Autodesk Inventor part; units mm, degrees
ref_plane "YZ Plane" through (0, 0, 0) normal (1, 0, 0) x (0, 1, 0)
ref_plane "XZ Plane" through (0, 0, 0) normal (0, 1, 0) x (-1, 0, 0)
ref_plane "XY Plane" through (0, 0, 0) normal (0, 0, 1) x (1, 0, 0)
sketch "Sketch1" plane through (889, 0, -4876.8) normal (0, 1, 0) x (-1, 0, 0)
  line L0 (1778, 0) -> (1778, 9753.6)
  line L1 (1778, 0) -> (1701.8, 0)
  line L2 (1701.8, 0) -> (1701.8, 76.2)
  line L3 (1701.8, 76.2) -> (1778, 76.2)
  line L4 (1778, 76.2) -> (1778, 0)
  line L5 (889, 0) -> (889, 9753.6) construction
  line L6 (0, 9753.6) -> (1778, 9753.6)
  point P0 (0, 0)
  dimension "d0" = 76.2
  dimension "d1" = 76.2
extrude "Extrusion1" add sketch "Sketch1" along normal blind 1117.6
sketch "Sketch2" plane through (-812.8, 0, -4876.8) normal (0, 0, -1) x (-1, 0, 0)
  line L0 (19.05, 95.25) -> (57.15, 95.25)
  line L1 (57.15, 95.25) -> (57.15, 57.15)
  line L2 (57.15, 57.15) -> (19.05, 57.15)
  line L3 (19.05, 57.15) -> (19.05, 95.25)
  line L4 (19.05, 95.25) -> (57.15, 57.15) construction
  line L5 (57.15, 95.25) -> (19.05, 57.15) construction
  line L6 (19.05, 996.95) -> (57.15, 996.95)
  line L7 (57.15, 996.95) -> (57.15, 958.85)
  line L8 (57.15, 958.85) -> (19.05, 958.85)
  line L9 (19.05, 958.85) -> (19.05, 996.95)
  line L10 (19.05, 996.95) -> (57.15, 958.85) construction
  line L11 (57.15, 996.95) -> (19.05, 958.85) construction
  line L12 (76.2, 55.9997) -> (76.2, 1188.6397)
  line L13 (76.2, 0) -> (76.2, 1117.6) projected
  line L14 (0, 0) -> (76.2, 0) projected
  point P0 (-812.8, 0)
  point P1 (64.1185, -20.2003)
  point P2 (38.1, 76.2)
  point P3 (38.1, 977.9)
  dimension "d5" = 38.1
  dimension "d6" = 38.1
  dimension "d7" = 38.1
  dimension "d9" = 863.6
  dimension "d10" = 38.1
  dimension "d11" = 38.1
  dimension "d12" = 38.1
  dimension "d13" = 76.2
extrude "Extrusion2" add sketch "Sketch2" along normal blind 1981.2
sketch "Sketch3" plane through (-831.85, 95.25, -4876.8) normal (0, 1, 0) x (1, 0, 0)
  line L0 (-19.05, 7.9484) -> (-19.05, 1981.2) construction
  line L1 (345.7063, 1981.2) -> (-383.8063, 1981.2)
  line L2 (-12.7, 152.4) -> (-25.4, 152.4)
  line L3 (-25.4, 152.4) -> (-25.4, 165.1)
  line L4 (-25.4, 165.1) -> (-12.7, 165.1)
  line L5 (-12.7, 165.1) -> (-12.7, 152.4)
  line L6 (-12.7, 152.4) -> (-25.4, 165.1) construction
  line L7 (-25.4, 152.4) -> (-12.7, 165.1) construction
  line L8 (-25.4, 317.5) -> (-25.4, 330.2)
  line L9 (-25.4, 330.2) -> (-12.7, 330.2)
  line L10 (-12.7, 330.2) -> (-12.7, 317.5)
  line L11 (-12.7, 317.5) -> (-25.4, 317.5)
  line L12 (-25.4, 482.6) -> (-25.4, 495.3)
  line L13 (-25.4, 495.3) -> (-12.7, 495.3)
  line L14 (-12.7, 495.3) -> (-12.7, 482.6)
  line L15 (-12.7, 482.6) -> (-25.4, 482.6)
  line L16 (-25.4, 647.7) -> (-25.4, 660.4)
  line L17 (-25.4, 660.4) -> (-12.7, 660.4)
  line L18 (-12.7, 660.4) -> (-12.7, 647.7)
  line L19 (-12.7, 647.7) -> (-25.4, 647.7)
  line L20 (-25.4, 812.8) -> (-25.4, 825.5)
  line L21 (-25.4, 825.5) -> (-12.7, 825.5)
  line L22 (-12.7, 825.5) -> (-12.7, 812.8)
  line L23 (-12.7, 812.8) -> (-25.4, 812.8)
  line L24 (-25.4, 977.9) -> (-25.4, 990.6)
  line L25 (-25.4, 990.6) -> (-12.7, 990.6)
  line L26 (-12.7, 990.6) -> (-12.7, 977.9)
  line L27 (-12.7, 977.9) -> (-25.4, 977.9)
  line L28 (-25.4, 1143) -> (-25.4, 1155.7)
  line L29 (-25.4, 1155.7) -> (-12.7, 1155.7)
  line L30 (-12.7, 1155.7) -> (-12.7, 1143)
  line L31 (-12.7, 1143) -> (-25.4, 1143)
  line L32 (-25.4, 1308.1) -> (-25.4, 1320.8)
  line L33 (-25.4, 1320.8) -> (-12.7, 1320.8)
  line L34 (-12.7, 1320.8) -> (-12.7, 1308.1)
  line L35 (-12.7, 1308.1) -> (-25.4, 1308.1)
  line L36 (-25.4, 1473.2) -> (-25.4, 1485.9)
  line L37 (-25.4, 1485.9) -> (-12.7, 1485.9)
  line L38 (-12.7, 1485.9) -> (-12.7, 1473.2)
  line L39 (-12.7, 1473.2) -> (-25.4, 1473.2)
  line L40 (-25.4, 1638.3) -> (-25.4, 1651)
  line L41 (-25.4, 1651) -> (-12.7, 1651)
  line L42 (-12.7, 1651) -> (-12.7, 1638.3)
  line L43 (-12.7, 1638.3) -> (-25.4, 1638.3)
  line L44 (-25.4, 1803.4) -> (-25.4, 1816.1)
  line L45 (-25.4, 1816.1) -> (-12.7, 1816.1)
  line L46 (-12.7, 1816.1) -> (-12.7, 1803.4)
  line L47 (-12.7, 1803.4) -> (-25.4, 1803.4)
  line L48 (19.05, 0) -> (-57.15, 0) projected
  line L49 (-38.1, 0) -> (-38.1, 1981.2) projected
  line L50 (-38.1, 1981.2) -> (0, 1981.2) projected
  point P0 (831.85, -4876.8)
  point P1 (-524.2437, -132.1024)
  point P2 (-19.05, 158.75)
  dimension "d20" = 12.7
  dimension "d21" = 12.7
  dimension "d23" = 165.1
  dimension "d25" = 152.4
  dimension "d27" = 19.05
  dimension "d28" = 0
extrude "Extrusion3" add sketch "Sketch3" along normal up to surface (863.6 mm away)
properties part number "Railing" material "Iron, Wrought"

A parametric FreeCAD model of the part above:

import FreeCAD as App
import Part
import Sketcher
Q = App.Units.Quantity

doc = App.newDocument("Part")
body = doc.addObject("PartDesign::Body", "Body")

# Sketch on XZ plane
sketch1 = body.newObject("Sketcher::SketchObject", "Sketch")
sketch1.AttachmentSupport = (doc.getObject("XZ_Plane"), [""])
sketch1.MapMode = "FlatFace"
sketch1.addGeometry([
    Part.LineSegment(App.Vector(-813, -4877, 0), App.Vector(-889, -4877, 0)),
    Part.LineSegment(App.Vector(-889, -4877, 0), App.Vector(-889, -4801, 0)),
    Part.LineSegment(App.Vector(-889, -4801, 0), App.Vector(-813, -4801, 0)),
    Part.LineSegment(App.Vector(-813, -4801, 0), App.Vector(-813, -4877, 0)),
], False)
sketch1.addConstraint([
    Sketcher.Constraint("Coincident", 0, 2, 1, 1),
    Sketcher.Constraint("Coincident", 1, 2, 2, 1),
    Sketcher.Constraint("Coincident", 2, 2, 3, 1),
    Sketcher.Constraint("Coincident", 3, 2, 0, 1),
    Sketcher.Constraint("Horizontal", 0),
    Sketcher.Constraint("Vertical", 1),
    Sketcher.Constraint("Horizontal", 2),
    Sketcher.Constraint("Vertical", 3),
    Sketcher.Constraint("Equal", 2, 1),
    Sketcher.Constraint("DistanceX", 0, 2, 0, 1, Q("3 in")),
    Sketcher.Constraint("DistanceX", 0, 2, -1, 1, Q("35 in")),
    Sketcher.Constraint("DistanceY", 0, 2, -1, 1, Q("192 in")),
])
pad1 = body.newObject("PartDesign::Pad", "Pad")
pad1.Profile = sketch1
pad1.Length = Q("44 in")
pad1.Reversed = True

# Sketch on XY plane
sketch2 = body.newObject("Sketcher::SketchObject", "Sketch001")
sketch2.AttachmentSupport = (doc.getObject("XY_Plane"), [""])
sketch2.MapMode = "FlatFace"
sketch2.AttachmentOffset = App.Placement(App.Vector(0, 0, -192 * 25.4), App.Rotation())
sketch2.addGeometry([
    Part.LineSegment(App.Vector(-870, 95, 0), App.Vector(-832, 95, 0)),  # 0
    Part.LineSegment(App.Vector(-832, 95, 0), App.Vector(-832, 57, 0)),  # 1
    Part.LineSegment(App.Vector(-832, 57, 0), App.Vector(-870, 57, 0)),  # 2
    Part.LineSegment(App.Vector(-870, 57, 0), App.Vector(-870, 95, 0)),  # 3
    Part.LineSegment(App.Vector(-870, 997, 0), App.Vector(-832, 997, 0)),  # 4
    Part.LineSegment(App.Vector(-832, 997, 0), App.Vector(-832, 959, 0)),  # 5
    Part.LineSegment(App.Vector(-832, 959, 0), App.Vector(-870, 959, 0)),  # 6
    Part.LineSegment(App.Vector(-870, 959, 0), App.Vector(-870, 997, 0)),  # 7
], False)
sketch2.addConstraint([
    Sketcher.Constraint("Coincident", 0, 2, 1, 1),
    Sketcher.Constraint("Coincident", 1, 2, 2, 1),
    Sketcher.Constraint("Coincident", 2, 2, 3, 1),
    Sketcher.Constraint("Coincident", 3, 2, 0, 1),
    Sketcher.Constraint("Coincident", 4, 2, 5, 1),
    Sketcher.Constraint("Coincident", 5, 2, 6, 1),
    Sketcher.Constraint("Coincident", 6, 2, 7, 1),
    Sketcher.Constraint("Coincident", 7, 2, 4, 1),
    Sketcher.Constraint("Horizontal", 0),
    Sketcher.Constraint("Vertical", 1),
    Sketcher.Constraint("Horizontal", 2),
    Sketcher.Constraint("Vertical", 3),
    Sketcher.Constraint("Horizontal", 4),
    Sketcher.Constraint("Vertical", 5),
    Sketcher.Constraint("Horizontal", 6),
    Sketcher.Constraint("Vertical", 7),
    Sketcher.Constraint("Vertical", 1, 2, 4, 2),
    Sketcher.Constraint("Vertical", 3, 2, 6, 2),
    Sketcher.Constraint("Equal", 6, 1),
    Sketcher.Constraint("Equal", 3, 5),
    Sketcher.Constraint("DistanceX", 0, 1, 0, 2, Q("1.5 in")),
    Sketcher.Constraint("DistanceY", 0, 2, 5, 2, Q("34 in")),
    Sketcher.Constraint("DistanceX", 0, 2, -1, 1, Q("32.75 in")),
    Sketcher.Constraint("DistanceY", -1, 1, 0, 2, Q("3.75 in")),
])
pad2 = body.newObject("PartDesign::Pad", "Pad001")
pad2.Profile = sketch2
pad2.Length = Q("78 in")
pad2.Reversed = True

# Sketch on XZ plane
sketch3 = body.newObject("Sketcher::SketchObject", "Sketch002")
sketch3.AttachmentSupport = (doc.getObject("XZ_Plane"), [""])
sketch3.MapMode = "FlatFace"
sketch3.AttachmentOffset = App.Placement(App.Vector(0, 0, -3.75 * 25.4), App.Rotation())
sketch3.addGeometry([
    Part.LineSegment(App.Vector(-857, -5029, 0), App.Vector(-845, -5029, 0)),  # 0
    Part.LineSegment(App.Vector(-845, -5029, 0), App.Vector(-845, -5042, 0)),  # 1
    Part.LineSegment(App.Vector(-845, -5042, 0), App.Vector(-857, -5042, 0)),  # 2
    Part.LineSegment(App.Vector(-857, -5042, 0), App.Vector(-857, -5029, 0)),  # 3
    Part.LineSegment(App.Vector(-857, -5207, 0), App.Vector(-857, -5194, 0)),  # 4
    Part.LineSegment(App.Vector(-857, -5194, 0), App.Vector(-845, -5194, 0)),  # 5
    Part.LineSegment(App.Vector(-845, -5194, 0), App.Vector(-845, -5207, 0)),  # 6
    Part.LineSegment(App.Vector(-845, -5207, 0), App.Vector(-857, -5207, 0)),  # 7
    Part.LineSegment(App.Vector(-857, -5372, 0), App.Vector(-857, -5359, 0)),  # 8
    Part.LineSegment(App.Vector(-857, -5359, 0), App.Vector(-845, -5359, 0)),  # 9
    Part.LineSegment(App.Vector(-845, -5359, 0), App.Vector(-845, -5372, 0)),  # 10
    Part.LineSegment(App.Vector(-845, -5372, 0), App.Vector(-857, -5372, 0)),  # 11
    Part.LineSegment(App.Vector(-857, -5537, 0), App.Vector(-857, -5524, 0)),  # 12
    Part.LineSegment(App.Vector(-857, -5524, 0), App.Vector(-845, -5524, 0)),  # 13
    Part.LineSegment(App.Vector(-845, -5524, 0), App.Vector(-845, -5537, 0)),  # 14
    Part.LineSegment(App.Vector(-845, -5537, 0), App.Vector(-857, -5537, 0)),  # 15
    Part.LineSegment(App.Vector(-857, -5702, 0), App.Vector(-857, -5690, 0)),  # 16
    Part.LineSegment(App.Vector(-857, -5690, 0), App.Vector(-845, -5690, 0)),  # 17
    Part.LineSegment(App.Vector(-845, -5690, 0), App.Vector(-845, -5702, 0)),  # 18
    Part.LineSegment(App.Vector(-845, -5702, 0), App.Vector(-857, -5702, 0)),  # 19
    Part.LineSegment(App.Vector(-857, -5867, 0), App.Vector(-857, -5855, 0)),  # 20
    Part.LineSegment(App.Vector(-857, -5855, 0), App.Vector(-845, -5855, 0)),  # 21
    Part.LineSegment(App.Vector(-845, -5855, 0), App.Vector(-845, -5867, 0)),  # 22
    Part.LineSegment(App.Vector(-845, -5867, 0), App.Vector(-857, -5867, 0)),  # 23
    Part.LineSegment(App.Vector(-857, -6032, 0), App.Vector(-857, -6020, 0)),  # 24
    Part.LineSegment(App.Vector(-857, -6020, 0), App.Vector(-845, -6020, 0)),  # 25
    Part.LineSegment(App.Vector(-845, -6020, 0), App.Vector(-845, -6032, 0)),  # 26
    Part.LineSegment(App.Vector(-845, -6032, 0), App.Vector(-857, -6032, 0)),  # 27
    Part.LineSegment(App.Vector(-857, -6198, 0), App.Vector(-857, -6185, 0)),  # 28
    Part.LineSegment(App.Vector(-857, -6185, 0), App.Vector(-845, -6185, 0)),  # 29
    Part.LineSegment(App.Vector(-845, -6185, 0), App.Vector(-845, -6198, 0)),  # 30
    Part.LineSegment(App.Vector(-845, -6198, 0), App.Vector(-857, -6198, 0)),  # 31
    Part.LineSegment(App.Vector(-857, -6363, 0), App.Vector(-857, -6350, 0)),  # 32
    Part.LineSegment(App.Vector(-857, -6350, 0), App.Vector(-845, -6350, 0)),  # 33
    Part.LineSegment(App.Vector(-845, -6350, 0), App.Vector(-845, -6363, 0)),  # 34
    Part.LineSegment(App.Vector(-845, -6363, 0), App.Vector(-857, -6363, 0)),  # 35
    Part.LineSegment(App.Vector(-857, -6528, 0), App.Vector(-857, -6515, 0)),  # 36
    Part.LineSegment(App.Vector(-857, -6515, 0), App.Vector(-845, -6515, 0)),  # 37
    Part.LineSegment(App.Vector(-845, -6515, 0), App.Vector(-845, -6528, 0)),  # 38
    Part.LineSegment(App.Vector(-845, -6528, 0), App.Vector(-857, -6528, 0)),  # 39
    Part.LineSegment(App.Vector(-857, -6693, 0), App.Vector(-857, -6680, 0)),  # 40
    Part.LineSegment(App.Vector(-857, -6680, 0), App.Vector(-845, -6680, 0)),  # 41
    Part.LineSegment(App.Vector(-845, -6680, 0), App.Vector(-845, -6693, 0)),  # 42
    Part.LineSegment(App.Vector(-845, -6693, 0), App.Vector(-857, -6693, 0)),  # 43
], False)
sketch3.addConstraint([
    Sketcher.Constraint("Coincident", 0, 2, 1, 1),
    Sketcher.Constraint("Coincident", 1, 2, 2, 1),
    Sketcher.Constraint("Coincident", 2, 2, 3, 1),
    Sketcher.Constraint("Coincident", 3, 2, 0, 1),
    Sketcher.Constraint("Coincident", 4, 2, 5, 1),
    Sketcher.Constraint("Coincident", 5, 2, 6, 1),
    Sketcher.Constraint("Coincident", 6, 2, 7, 1),
    Sketcher.Constraint("Coincident", 7, 2, 4, 1),
    Sketcher.Constraint("Coincident", 8, 2, 9, 1),
    Sketcher.Constraint("Coincident", 9, 2, 10, 1),
    Sketcher.Constraint("Coincident", 10, 2, 11, 1),
    Sketcher.Constraint("Coincident", 11, 2, 8, 1),
    Sketcher.Constraint("Coincident", 12, 2, 13, 1),
    Sketcher.Constraint("Coincident", 13, 2, 14, 1),
    Sketcher.Constraint("Coincident", 14, 2, 15, 1),
    Sketcher.Constraint("Coincident", 15, 2, 12, 1),
    Sketcher.Constraint("Coincident", 16, 2, 17, 1),
    Sketcher.Constraint("Coincident", 17, 2, 18, 1),
    Sketcher.Constraint("Coincident", 18, 2, 19, 1),
    Sketcher.Constraint("Coincident", 19, 2, 16, 1),
    Sketcher.Constraint("Coincident", 20, 2, 21, 1),
    Sketcher.Constraint("Coincident", 21, 2, 22, 1),
    Sketcher.Constraint("Coincident", 22, 2, 23, 1),
    Sketcher.Constraint("Coincident", 23, 2, 20, 1),
    Sketcher.Constraint("Coincident", 24, 2, 25, 1),
    Sketcher.Constraint("Coincident", 25, 2, 26, 1),
    Sketcher.Constraint("Coincident", 26, 2, 27, 1),
    Sketcher.Constraint("Coincident", 27, 2, 24, 1),
    Sketcher.Constraint("Coincident", 28, 2, 29, 1),
    Sketcher.Constraint("Coincident", 29, 2, 30, 1),
    Sketcher.Constraint("Coincident", 30, 2, 31, 1),
    Sketcher.Constraint("Coincident", 31, 2, 28, 1),
    Sketcher.Constraint("Coincident", 32, 2, 33, 1),
    Sketcher.Constraint("Coincident", 33, 2, 34, 1),
    Sketcher.Constraint("Coincident", 34, 2, 35, 1),
    Sketcher.Constraint("Coincident", 35, 2, 32, 1),
    Sketcher.Constraint("Coincident", 36, 2, 37, 1),
    Sketcher.Constraint("Coincident", 37, 2, 38, 1),
    Sketcher.Constraint("Coincident", 38, 2, 39, 1),
    Sketcher.Constraint("Coincident", 39, 2, 36, 1),
    Sketcher.Constraint("Coincident", 40, 2, 41, 1),
    Sketcher.Constraint("Coincident", 41, 2, 42, 1),
    Sketcher.Constraint("Coincident", 42, 2, 43, 1),
    Sketcher.Constraint("Coincident", 43, 2, 40, 1),
    Sketcher.Constraint("Horizontal", 0),
    Sketcher.Constraint("Vertical", 1),
    Sketcher.Constraint("Horizontal", 2),
    Sketcher.Constraint("Vertical", 3),
    Sketcher.Constraint("Vertical", 4),
    Sketcher.Constraint("Horizontal", 5),
    Sketcher.Constraint("Vertical", 6),
    Sketcher.Constraint("Horizontal", 7),
    Sketcher.Constraint("Vertical", 8),
    Sketcher.Constraint("Horizontal", 9),
    Sketcher.Constraint("Vertical", 10),
    Sketcher.Constraint("Horizontal", 11),
    Sketcher.Constraint("Vertical", 12),
    Sketcher.Constraint("Horizontal", 13),
    Sketcher.Constraint("Vertical", 14),
    Sketcher.Constraint("Horizontal", 15),
    Sketcher.Constraint("Vertical", 16),
    Sketcher.Constraint("Horizontal", 17),
    Sketcher.Constraint("Vertical", 18),
    Sketcher.Constraint("Horizontal", 19),
    Sketcher.Constraint("Vertical", 20),
    Sketcher.Constraint("Horizontal", 21),
    Sketcher.Constraint("Vertical", 22),
    Sketcher.Constraint("Horizontal", 23),
    Sketcher.Constraint("Vertical", 24),
    Sketcher.Constraint("Horizontal", 25),
    Sketcher.Constraint("Vertical", 26),
    Sketcher.Constraint("Horizontal", 27),
    Sketcher.Constraint("Vertical", 28),
    Sketcher.Constraint("Horizontal", 29),
    Sketcher.Constraint("Vertical", 30),
    Sketcher.Constraint("Horizontal", 31),
    Sketcher.Constraint("Vertical", 32),
    Sketcher.Constraint("Horizontal", 33),
    Sketcher.Constraint("Vertical", 34),
    Sketcher.Constraint("Horizontal", 35),
    Sketcher.Constraint("Vertical", 36),
    Sketcher.Constraint("Horizontal", 37),
    Sketcher.Constraint("Vertical", 38),
    Sketcher.Constraint("Horizontal", 39),
    Sketcher.Constraint("Vertical", 40),
    Sketcher.Constraint("Horizontal", 41),
    Sketcher.Constraint("Vertical", 42),
    Sketcher.Constraint("Horizontal", 43),
    Sketcher.Constraint("Vertical", 3, 2, 4, 2),
    Sketcher.Constraint("Vertical", 1, 2, 5, 2),
    Sketcher.Constraint("Vertical", 7, 2, 8, 2),
    Sketcher.Constraint("Vertical", 6, 2, 9, 2),
    Sketcher.Constraint("Vertical", 11, 2, 12, 2),
    Sketcher.Constraint("Vertical", 10, 2, 13, 2),
    Sketcher.Constraint("Vertical", 15, 2, 16, 2),
    Sketcher.Constraint("Vertical", 14, 2, 17, 2),
    Sketcher.Constraint("Vertical", 19, 2, 20, 2),
    Sketcher.Constraint("Vertical", 18, 2, 21, 2),
    Sketcher.Constraint("Vertical", 23, 2, 24, 2),
    Sketcher.Constraint("Vertical", 22, 2, 25, 2),
    Sketcher.Constraint("Vertical", 27, 2, 28, 2),
    Sketcher.Constraint("Vertical", 26, 2, 29, 2),
    Sketcher.Constraint("Vertical", 31, 2, 32, 2),
    Sketcher.Constraint("Vertical", 30, 2, 33, 2),
    Sketcher.Constraint("Vertical", 35, 2, 36, 2),
    Sketcher.Constraint("Vertical", 34, 2, 37, 2),
    Sketcher.Constraint("Vertical", 39, 2, 40, 2),
    Sketcher.Constraint("Vertical", 38, 2, 41, 2),
    Sketcher.Constraint("Equal", 43, 1),
    Sketcher.Constraint("Equal", 3, 4),
    Sketcher.Constraint("Equal", 6, 8),
    Sketcher.Constraint("Equal", 10, 12),
    Sketcher.Constraint("Equal", 14, 16),
    Sketcher.Constraint("Equal", 18, 20),
    Sketcher.Constraint("Equal", 22, 24),
    Sketcher.Constraint("Equal", 26, 28),
    Sketcher.Constraint("Equal", 30, 32),
    Sketcher.Constraint("Equal", 34, 36),
    Sketcher.Constraint("Equal", 38, 40),
    Sketcher.Constraint("DistanceX", 0, 1, 0, 2, Q("0.5 in")),
    Sketcher.Constraint("DistanceY", 4, 2, 2, 2, Q("6 in")),
    Sketcher.Constraint("DistanceY", 8, 2, 7, 2, Q("6 in")),
    Sketcher.Constraint("DistanceY", 12, 2, 11, 2, Q("6 in")),
    Sketcher.Constraint("DistanceY", 16, 2, 15, 2, Q("6 in")),
    Sketcher.Constraint("DistanceY", 20, 2, 19, 2, Q("6 in")),
    Sketcher.Constraint("DistanceY", 24, 2, 23, 2, Q("6 in")),
    Sketcher.Constraint("DistanceY", 28, 2, 27, 2, Q("6 in")),
    Sketcher.Constraint("DistanceY", 32, 2, 31, 2, Q("6 in")),
    Sketcher.Constraint("DistanceY", 36, 2, 35, 2, Q("6 in")),
    Sketcher.Constraint("DistanceY", 40, 2, 39, 2, Q("6 in")),
    Sketcher.Constraint("DistanceY", 0, 2, -1, 1, Q("198 in")),
    Sketcher.Constraint("DistanceX", 0, 2, -1, 1, Q("33.25 in")),
])
pad3 = body.newObject("PartDesign::Pad", "Pad002")
pad3.Profile = sketch3
pad3.Length = Q("34 in")
pad3.Reversed = True

doc.recompute()
